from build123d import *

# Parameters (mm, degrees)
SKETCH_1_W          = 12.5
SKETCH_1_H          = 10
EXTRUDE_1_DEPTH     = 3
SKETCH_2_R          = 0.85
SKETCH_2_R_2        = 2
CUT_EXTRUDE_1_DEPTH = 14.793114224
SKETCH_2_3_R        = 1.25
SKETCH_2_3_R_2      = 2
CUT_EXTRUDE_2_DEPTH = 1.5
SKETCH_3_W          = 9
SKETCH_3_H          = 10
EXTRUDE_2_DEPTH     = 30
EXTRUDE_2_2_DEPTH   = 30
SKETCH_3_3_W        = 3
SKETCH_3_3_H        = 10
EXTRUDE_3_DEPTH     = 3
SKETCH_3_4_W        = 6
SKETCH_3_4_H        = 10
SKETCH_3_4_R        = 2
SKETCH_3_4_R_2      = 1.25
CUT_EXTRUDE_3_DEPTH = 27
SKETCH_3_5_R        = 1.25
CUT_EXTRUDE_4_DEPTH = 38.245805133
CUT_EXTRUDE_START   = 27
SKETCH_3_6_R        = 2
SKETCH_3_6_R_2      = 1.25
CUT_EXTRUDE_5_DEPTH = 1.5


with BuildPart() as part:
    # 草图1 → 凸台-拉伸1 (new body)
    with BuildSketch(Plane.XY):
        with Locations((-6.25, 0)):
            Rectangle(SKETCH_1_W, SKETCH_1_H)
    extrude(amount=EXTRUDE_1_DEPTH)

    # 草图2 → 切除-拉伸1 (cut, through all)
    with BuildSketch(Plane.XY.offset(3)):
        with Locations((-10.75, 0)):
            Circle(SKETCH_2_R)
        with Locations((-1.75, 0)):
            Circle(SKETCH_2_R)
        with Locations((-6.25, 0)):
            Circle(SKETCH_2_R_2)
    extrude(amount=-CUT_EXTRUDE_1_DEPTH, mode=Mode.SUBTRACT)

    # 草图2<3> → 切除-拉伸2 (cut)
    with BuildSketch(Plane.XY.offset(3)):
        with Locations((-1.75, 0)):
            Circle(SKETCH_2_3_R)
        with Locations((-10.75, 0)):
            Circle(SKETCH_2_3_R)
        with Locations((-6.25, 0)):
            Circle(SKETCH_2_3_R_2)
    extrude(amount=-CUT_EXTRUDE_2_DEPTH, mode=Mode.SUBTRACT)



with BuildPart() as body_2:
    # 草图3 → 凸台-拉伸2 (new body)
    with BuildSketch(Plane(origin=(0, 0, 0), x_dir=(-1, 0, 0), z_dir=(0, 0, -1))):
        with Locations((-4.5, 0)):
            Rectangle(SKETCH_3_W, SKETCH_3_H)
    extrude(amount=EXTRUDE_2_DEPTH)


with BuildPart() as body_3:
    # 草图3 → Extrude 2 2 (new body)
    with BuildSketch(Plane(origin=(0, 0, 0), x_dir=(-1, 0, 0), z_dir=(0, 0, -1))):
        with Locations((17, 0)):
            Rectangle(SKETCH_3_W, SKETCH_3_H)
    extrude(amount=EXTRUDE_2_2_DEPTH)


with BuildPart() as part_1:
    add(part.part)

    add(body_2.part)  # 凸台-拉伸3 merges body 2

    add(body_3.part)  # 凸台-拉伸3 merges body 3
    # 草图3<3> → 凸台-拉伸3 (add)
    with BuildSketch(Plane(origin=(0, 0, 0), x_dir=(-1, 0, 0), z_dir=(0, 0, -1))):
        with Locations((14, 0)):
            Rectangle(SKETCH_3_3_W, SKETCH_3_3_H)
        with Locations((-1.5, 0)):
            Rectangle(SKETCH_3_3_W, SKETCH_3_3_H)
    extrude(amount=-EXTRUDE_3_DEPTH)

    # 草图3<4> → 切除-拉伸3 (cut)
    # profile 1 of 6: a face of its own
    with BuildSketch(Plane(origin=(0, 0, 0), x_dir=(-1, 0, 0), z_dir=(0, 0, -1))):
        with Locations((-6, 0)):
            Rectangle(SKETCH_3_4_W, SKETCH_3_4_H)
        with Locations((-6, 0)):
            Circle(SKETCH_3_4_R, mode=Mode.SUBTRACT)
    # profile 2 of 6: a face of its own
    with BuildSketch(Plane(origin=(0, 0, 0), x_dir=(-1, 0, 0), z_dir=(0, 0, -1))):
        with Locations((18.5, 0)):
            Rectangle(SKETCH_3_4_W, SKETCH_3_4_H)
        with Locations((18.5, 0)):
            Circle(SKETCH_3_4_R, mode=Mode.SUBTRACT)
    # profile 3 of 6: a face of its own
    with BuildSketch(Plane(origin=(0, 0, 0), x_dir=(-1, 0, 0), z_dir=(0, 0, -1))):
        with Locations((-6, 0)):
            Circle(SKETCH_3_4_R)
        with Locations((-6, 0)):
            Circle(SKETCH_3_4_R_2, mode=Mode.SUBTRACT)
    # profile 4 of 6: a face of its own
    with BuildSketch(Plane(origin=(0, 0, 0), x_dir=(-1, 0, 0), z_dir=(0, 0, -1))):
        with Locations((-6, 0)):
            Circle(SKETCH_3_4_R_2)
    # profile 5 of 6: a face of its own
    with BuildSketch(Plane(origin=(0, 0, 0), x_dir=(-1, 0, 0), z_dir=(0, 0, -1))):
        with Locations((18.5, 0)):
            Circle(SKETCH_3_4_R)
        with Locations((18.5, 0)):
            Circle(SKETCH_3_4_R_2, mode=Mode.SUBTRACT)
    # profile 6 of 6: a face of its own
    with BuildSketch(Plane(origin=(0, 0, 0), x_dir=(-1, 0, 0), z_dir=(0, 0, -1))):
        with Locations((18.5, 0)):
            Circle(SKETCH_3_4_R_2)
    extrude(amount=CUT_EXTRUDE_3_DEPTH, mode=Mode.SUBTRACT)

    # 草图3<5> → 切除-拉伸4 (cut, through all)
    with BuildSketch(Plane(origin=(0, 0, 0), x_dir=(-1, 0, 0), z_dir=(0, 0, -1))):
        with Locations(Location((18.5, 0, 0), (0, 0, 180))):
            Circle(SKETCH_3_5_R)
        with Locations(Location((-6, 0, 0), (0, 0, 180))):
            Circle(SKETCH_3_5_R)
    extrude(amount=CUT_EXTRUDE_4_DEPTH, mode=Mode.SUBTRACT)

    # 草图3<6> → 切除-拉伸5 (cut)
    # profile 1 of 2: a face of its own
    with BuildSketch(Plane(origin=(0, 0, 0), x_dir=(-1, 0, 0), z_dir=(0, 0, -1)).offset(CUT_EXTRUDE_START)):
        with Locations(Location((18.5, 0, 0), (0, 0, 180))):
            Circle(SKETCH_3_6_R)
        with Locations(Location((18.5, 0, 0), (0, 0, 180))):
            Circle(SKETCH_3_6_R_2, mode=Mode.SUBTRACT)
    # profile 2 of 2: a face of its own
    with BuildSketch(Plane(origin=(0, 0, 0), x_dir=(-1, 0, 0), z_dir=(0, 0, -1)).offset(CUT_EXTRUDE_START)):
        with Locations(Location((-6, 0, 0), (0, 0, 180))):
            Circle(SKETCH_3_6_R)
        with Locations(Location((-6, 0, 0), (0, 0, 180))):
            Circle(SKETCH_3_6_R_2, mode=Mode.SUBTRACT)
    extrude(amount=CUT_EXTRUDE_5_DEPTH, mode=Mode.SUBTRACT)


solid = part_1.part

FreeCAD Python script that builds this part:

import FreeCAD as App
import Part
import Sketcher


def add_polygon(sketch, points):
    """Adds a closed chain of lines whose ends are joined by coincident constraints."""
    first, n = sketch.GeometryCount, len(points)
    for a, b in zip(points, points[1:] + points[:1]):
        sketch.addGeometry(Part.LineSegment(App.Vector(*a, 0), App.Vector(*b, 0)), False)
    for i in range(n):
        sketch.addConstraint(Sketcher.Constraint("Coincident", first + i, 2, first + (i + 1) % n, 1))

doc = App.newDocument("Part")
body = doc.addObject("PartDesign::Body", "Body")

sketch1 = body.newObject("Sketcher::SketchObject", "Sketch")
sketch1.AttachmentSupport = (doc.getObject("XY_Plane"), [""])
sketch1.MapMode = "FlatFace"
add_polygon(sketch1, [(-12, 5), (-12, -5), (0, -5), (0, 5)])
sketch1.addConstraint([
    Sketcher.Constraint("Vertical", 0),
    Sketcher.Constraint("Horizontal", 1),
    Sketcher.Constraint("Vertical", 2),
    Sketcher.Constraint("Horizontal", 3),
    Sketcher.Constraint("Symmetric", 1, 2, 2, 2, -1, 1),
    Sketcher.Constraint("DistanceY", 0, 2, 0, 1, 10.0),
    Sketcher.Constraint("DistanceX", 1, 1, 1, 2, 12.5),
])
pad1 = body.newObject("PartDesign::Pad", "Pad")
pad1.Profile = sketch1
pad1.Length = 3

sketch2 = body.newObject("Sketcher::SketchObject", "Sketch001")
sketch2.AttachmentSupport = (doc.getObject("XY_Plane"), [""])
sketch2.MapMode = "FlatFace"
sketch2.AttachmentOffset = App.Placement(App.Vector(0, 0, 3), App.Rotation())
sketch2.addGeometry([
    Part.Circle(App.Vector(-10.8, 0, 0), App.Vector(0, 0, 1), 0.8),
    Part.Circle(App.Vector(-1.8, 0, 0), App.Vector(0, 0, 1), 0.8),
    Part.Circle(App.Vector(-6.2, 0, 0), App.Vector(0, 0, 1), 2),
], False)
sketch2.addConstraint([
    Sketcher.Constraint("Equal", 0, 1),
    Sketcher.Constraint("PointOnObject", 0, 3, -1),
    Sketcher.Constraint("PointOnObject", 1, 3, -1),
    Sketcher.Constraint("PointOnObject", 2, 3, -1),
    Sketcher.Constraint("Diameter", 2, 4.0),
    Sketcher.Constraint("Diameter", 0, 1.7),
    Sketcher.Constraint("DistanceX", 0, 3, 1, 3, 9.0),
    Sketcher.Constraint("DistanceX", 0, 3, 2, 3, 4.5),
    Sketcher.Constraint("DistanceX", 0, 3, -1, 1, 10.75),
])
pocket1 = body.newObject("PartDesign::Pocket", "Pocket")
pocket1.Profile = sketch2
pocket1.Type = "ThroughAll"

sketch3 = body.newObject("Sketcher::SketchObject", "Sketch002")
sketch3.AttachmentSupport = (doc.getObject("XY_Plane"), [""])
sketch3.MapMode = "FlatFace"
sketch3.AttachmentOffset = App.Placement(App.Vector(0, 0, 3), App.Rotation())
sketch3.addGeometry([
    Part.Circle(App.Vector(-1.8, 0, 0), App.Vector(0, 0, 1), 1.2),
    Part.Circle(App.Vector(-10.8, 0, 0), App.Vector(0, 0, 1), 1.2),
    Part.Circle(App.Vector(-6.2, 0, 0), App.Vector(0, 0, 1), 2),
], False)
sketch3.addConstraint([
    Sketcher.Constraint("Equal", 0, 1),
    Sketcher.Constraint("PointOnObject", 0, 3, -1),
    Sketcher.Constraint("PointOnObject", 1, 3, -1),
    Sketcher.Constraint("PointOnObject", 2, 3, -1),
    Sketcher.Constraint("Diameter", 2, 4.0),
    Sketcher.Constraint("Diameter", 0, 2.5),
    Sketcher.Constraint("DistanceX", 1, 3, 0, 3, 9.0),
    Sketcher.Constraint("DistanceX", 2, 3, 0, 3, 4.5),
    Sketcher.Constraint("DistanceX", 0, 3, -1, 1, 1.75),
])
pocket2 = body.newObject("PartDesign::Pocket", "Pocket001")
pocket2.Profile = sketch3
pocket2.Length = 1.5
body2 = doc.addObject("PartDesign::Body", "Body001")

sketch4 = body2.newObject("Sketcher::SketchObject", "Sketch003")
sketch4.AttachmentSupport = (doc.getObject("XY_Plane001"), [""])
sketch4.MapMode = "FlatFace"
add_polygon(sketch4, [(9, 5), (9, -5), (0, -5), (0, 5)])
sketch4.addConstraint([
    Sketcher.Constraint("Vertical", 0),
    Sketcher.Constraint("Horizontal", 1),
    Sketcher.Constraint("Vertical", 2),
    Sketcher.Constraint("Horizontal", 3),
    Sketcher.Constraint("Symmetric", 1, 2, 2, 2, -1, 1),
    Sketcher.Constraint("DistanceX", 1, 2, 1, 1, 9.0),
    Sketcher.Constraint("DistanceY", 0, 2, 0, 1, 10.0),
])
pad2 = body2.newObject("PartDesign::Pad", "Pad001")
pad2.Profile = sketch4
pad2.Length = 30
pad2.Reversed = True
body3 = doc.addObject("PartDesign::Body", "Body002")

sketch5 = body3.newObject("Sketcher::SketchObject", "Sketch004")
sketch5.AttachmentSupport = (doc.getObject("XY_Plane002"), [""])
sketch5.MapMode = "FlatFace"
add_polygon(sketch5, [(-12, 5), (-12, -5), (-22, -5), (-22, 5)])
sketch5.addConstraint([
    Sketcher.Constraint("Vertical", 0),
    Sketcher.Constraint("Horizontal", 1),
    Sketcher.Constraint("Vertical", 2),
    Sketcher.Constraint("Horizontal", 3),
    Sketcher.Constraint("DistanceX", 1, 2, 1, 1, 9.0),
    Sketcher.Constraint("DistanceY", 0, 2, 0, 1, 10.0),
    Sketcher.Constraint("DistanceY", 0, 2, -1, 1, 5.0),
    Sketcher.Constraint("DistanceX", 0, 2, -1, 1, 12.5),
])
pad3 = body3.newObject("PartDesign::Pad", "Pad002")
pad3.Profile = sketch5
pad3.Length = 30
pad3.Reversed = True
body.AllowCompound = True
doc.recompute()

boolean = body.newObject("PartDesign::Boolean", "Boolean")
boolean.Type = "Fuse"
boolean.addObjects([body2])
doc.recompute()

boolean2 = body.newObject("PartDesign::Boolean", "Boolean001")
boolean2.Type = "Fuse"
boolean2.addObjects([body3])

sketch6 = body.newObject("Sketcher::SketchObject", "Sketch005")
sketch6.AttachmentSupport = (doc.getObject("XY_Plane"), [""])
sketch6.MapMode = "FlatFace"
add_polygon(sketch6, [(-12.5, 5), (-12.5, -5), (-15.5, -5), (-15.5, 5)])
add_polygon(sketch6, [(3, 5), (3, -5), (0, -5), (0, 5)])
sketch6.addConstraint([
    Sketcher.Constraint("Vertical", 0),
    Sketcher.Constraint("Horizontal", 1),
    Sketcher.Constraint("Vertical", 2),
    Sketcher.Constraint("Horizontal", 3),
    Sketcher.Constraint("Vertical", 4),
    Sketcher.Constraint("Horizontal", 5),
    Sketcher.Constraint("Vertical", 6),
    Sketcher.Constraint("Horizontal", 7),
    Sketcher.Constraint("Symmetric", 5, 2, 6, 2, -1, 1),
    Sketcher.Constraint("Horizontal", 1, 2, 4, 2),
    Sketcher.Constraint("Horizontal", 3, 2, 6, 2),
    Sketcher.Constraint("Equal", 3, 5),
    Sketcher.Constraint("DistanceX", 1, 2, 1, 1, 3.0),
    Sketcher.Constraint("DistanceY", 0, 2, 0, 1, 10.0),
    Sketcher.Constraint("DistanceX", 0, 2, -1, 1, 12.5),
])
pad4 = body.newObject("PartDesign::Pad", "Pad003")
pad4.Profile = sketch6
pad4.Length = 3

sketch7 = body.newObject("Sketcher::SketchObject", "Sketch006")
sketch7.AttachmentSupport = (doc.getObject("XY_Plane"), [""])
sketch7.MapMode = "FlatFace"
add_polygon(sketch7, [(9, 5), (9, -5), (3, -5), (3, 5)])
add_polygon(sketch7, [(-16, 5), (-16, -5), (-22, -5), (-22, 5)])
sketch7.addConstraint([
    Sketcher.Constraint("Vertical", 0),
    Sketcher.Constraint("Horizontal", 1),
    Sketcher.Constraint("Vertical", 2),
    Sketcher.Constraint("Horizontal", 3),
    Sketcher.Constraint("Vertical", 4),
    Sketcher.Constraint("Horizontal", 5),
    Sketcher.Constraint("Vertical", 6),
    Sketcher.Constraint("Horizontal", 7),
    Sketcher.Constraint("Horizontal", 1, 2, 4, 2),
    Sketcher.Constraint("Horizontal", 3, 2, 6, 2),
    Sketcher.Constraint("Equal", 3, 5),
    Sketcher.Constraint("DistanceX", 1, 2, 1, 1, 6.0),
    Sketcher.Constraint("DistanceY", 0, 2, 0, 1, 10.0),
    Sketcher.Constraint("DistanceX", -1, 1, 0, 2, 9.0),
    Sketcher.Constraint("DistanceY", 0, 2, -1, 1, 5.0),
    Sketcher.Constraint("DistanceX", 4, 2, -1, 1, 15.5),
])
pocket3 = body.newObject("PartDesign::Pocket", "Pocket002")
pocket3.Profile = sketch7
pocket3.Length = 27

sketch8 = body.newObject("Sketcher::SketchObject", "Sketch007")
sketch8.AttachmentSupport = (doc.getObject("XY_Plane"), [""])
sketch8.MapMode = "FlatFace"
sketch8.addGeometry([
    Part.Circle(App.Vector(-18.5, 0, 0), App.Vector(0, 0, 1), 1.2),
    Part.Circle(App.Vector(6, 0, 0), App.Vector(0, 0, 1), 1.2),
], False)
sketch8.addConstraint([
    Sketcher.Constraint("Equal", 0, 1),
    Sketcher.Constraint("PointOnObject", 0, 3, -1),
    Sketcher.Constraint("PointOnObject", 1, 3, -1),
    Sketcher.Constraint("Diameter", 0, 2.5),
    Sketcher.Constraint("DistanceX", -1, 1, 1, 3, 6.0),
    Sketcher.Constraint("DistanceX", 0, 3, -1, 1, 18.5),
])
pocket4 = body.newObject("PartDesign::Pocket", "Pocket003")
pocket4.Profile = sketch8
pocket4.Type = "ThroughAll"

sketch9 = body.newObject("Sketcher::SketchObject", "Sketch008")
sketch9.AttachmentSupport = (doc.getObject("XY_Plane"), [""])
sketch9.MapMode = "FlatFace"
sketch9.AttachmentOffset = App.Placement(App.Vector(0, 0, -27), App.Rotation())
sketch9.addGeometry([
    Part.Circle(App.Vector(-18.5, 0, 0), App.Vector(0, 0, 1), 2),
    Part.Circle(App.Vector(-18.5, 0, 0), App.Vector(0, 0, 1), 1.2),
    Part.Circle(App.Vector(6, 0, 0), App.Vector(0, 0, 1), 2),
    Part.Circle(App.Vector(6, 0, 0), App.Vector(0, 0, 1), 1.2),
], False)
sketch9.addConstraint([
    Sketcher.Constraint("Coincident", 1, 3, 0, 3),
    Sketcher.Constraint("Coincident", 3, 3, 2, 3),
    Sketcher.Constraint("Equal", 0, 2),
    Sketcher.Constraint("Equal", 1, 3),
    Sketcher.Constraint("PointOnObject", 0, 3, -1),
    Sketcher.Constraint("PointOnObject", 2, 3, -1),
    Sketcher.Constraint("Diameter", 0, 4.0),
    Sketcher.Constraint("Diameter", 1, 2.5),
    Sketcher.Constraint("DistanceX", -1, 1, 2, 3, 6.0),
    Sketcher.Constraint("DistanceX", 0, 3, -1, 1, 18.5),
])
pocket5 = body.newObject("PartDesign::Pocket", "Pocket004")
pocket5.Profile = sketch9
pocket5.Length = 1.5

doc.recompute()
